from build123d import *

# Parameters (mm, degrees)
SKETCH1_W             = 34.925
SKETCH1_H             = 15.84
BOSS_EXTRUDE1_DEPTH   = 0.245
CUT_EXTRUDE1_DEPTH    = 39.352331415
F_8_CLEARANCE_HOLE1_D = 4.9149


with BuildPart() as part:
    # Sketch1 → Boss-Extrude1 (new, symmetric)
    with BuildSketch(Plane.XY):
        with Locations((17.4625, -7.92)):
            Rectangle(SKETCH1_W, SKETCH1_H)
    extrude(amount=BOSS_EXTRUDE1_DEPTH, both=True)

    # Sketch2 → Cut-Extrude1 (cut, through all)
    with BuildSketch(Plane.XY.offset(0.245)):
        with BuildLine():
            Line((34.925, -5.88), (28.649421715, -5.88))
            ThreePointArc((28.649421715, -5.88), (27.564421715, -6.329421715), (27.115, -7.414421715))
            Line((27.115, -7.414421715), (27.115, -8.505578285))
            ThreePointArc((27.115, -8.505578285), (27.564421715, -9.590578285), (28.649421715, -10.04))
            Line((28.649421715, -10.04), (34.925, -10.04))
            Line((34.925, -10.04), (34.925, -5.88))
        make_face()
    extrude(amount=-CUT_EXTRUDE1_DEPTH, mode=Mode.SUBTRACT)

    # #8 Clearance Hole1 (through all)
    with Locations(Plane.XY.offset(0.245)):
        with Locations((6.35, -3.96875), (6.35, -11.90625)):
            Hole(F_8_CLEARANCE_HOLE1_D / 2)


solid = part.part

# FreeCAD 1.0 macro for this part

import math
import FreeCAD as App
import Part
import Sketcher
from FreeCAD import Vector
Q = App.Units.Quantity

doc = App.newDocument("Part")
params = doc.addObject("Spreadsheet::Sheet", "Params")
for row, (alias, value) in enumerate([
    ("sketch1_width", "1.375 in"),
    ("pad1_length", "0.49 mm"),
    ("hole_diameter", "0.1935 in"),
], start=1):
    params.set(f"A{row}", alias)
    params.set(f"B{row}", "=" + value)
    params.setAlias(f"B{row}", alias)

body = doc.addObject("PartDesign::Body", "Body")

sketch1 = body.newObject("Sketcher::SketchObject", "Sketch")
sketch1.AttachmentSupport = (doc.getObject("XY_Plane"), [""])
sketch1.MapMode = "FlatFace"
sketch1.addGeometry(Part.LineSegment(Vector(0, 0, 0), Vector(0, -16, 0)), False)
sketch1.addGeometry(Part.LineSegment(Vector(0, -16, 0), Vector(35, -16, 0)), False)
sketch1.addGeometry(Part.LineSegment(Vector(35, -16, 0), Vector(35, 0, 0)), False)
sketch1.addGeometry(Part.LineSegment(Vector(35, 0, 0), Vector(0, 0, 0)), False)
sketch1.addConstraint(Sketcher.Constraint("Coincident", 0, 2, 1, 1))
sketch1.addConstraint(Sketcher.Constraint("Coincident", 1, 2, 2, 1))
sketch1.addConstraint(Sketcher.Constraint("Coincident", 2, 2, 3, 1))
sketch1.addConstraint(Sketcher.Constraint("Coincident", 3, 2, 0, 1))
sketch1.addConstraint(Sketcher.Constraint("Vertical", 0))
sketch1.addConstraint(Sketcher.Constraint("Horizontal", 1))
sketch1.addConstraint(Sketcher.Constraint("Vertical", 2))
sketch1.addConstraint(Sketcher.Constraint("Horizontal", 3))
sketch1.addConstraint(Sketcher.Constraint("Coincident", 3, 2, -1, 1))
sketch1.addConstraint(Sketcher.Constraint("DistanceX", 1, 1, 1, 2, Q("1.375 in")))
sketch1.addConstraint(Sketcher.Constraint("DistanceY", 0, 2, 0, 1, 15.84))
sketch1.setExpression("Constraints[9]", "Params.sketch1_width")
pad1 = body.newObject("PartDesign::Pad", "Pad")
pad1.Profile = sketch1
pad1.setExpression("Length", "Params.pad1_length")
pad1.Midplane = True

sketch2 = body.newObject("Sketcher::SketchObject", "Sketch001")
sketch2.AttachmentSupport = (doc.getObject("XY_Plane"), [""])
sketch2.MapMode = "FlatFace"
sketch2.AttachmentOffset = App.Placement(Vector(0, 0, 0.245), App.Rotation())
sketch2.addGeometry(Part.LineSegment(Vector(34.9, -5.9, 0), Vector(28.6, -5.9, 0)), False)
sketch2.addGeometry(Part.ArcOfCircle(Part.Circle(Vector(28.6, -7.4, 0), Vector(0, 0, 1), 1.5), math.radians(90), math.radians(180)), False)
sketch2.addGeometry(Part.LineSegment(Vector(27.1, -7.4, 0), Vector(27.1, -8.5, 0)), False)
sketch2.addGeometry(Part.ArcOfCircle(Part.Circle(Vector(28.6, -8.5, 0), Vector(0, 0, 1), 1.5), math.radians(180), math.radians(270)), False)
sketch2.addGeometry(Part.LineSegment(Vector(28.6, -10, 0), Vector(34.9, -10, 0)), False)
sketch2.addGeometry(Part.LineSegment(Vector(34.9, -10, 0), Vector(34.9, -5.9, 0)), False)
sketch2.addConstraint(Sketcher.Constraint("Tangent", 0, 2, 1, 1))
sketch2.addConstraint(Sketcher.Constraint("Tangent", 1, 2, 2, 1))
sketch2.addConstraint(Sketcher.Constraint("Tangent", 2, 2, 3, 1))
sketch2.addConstraint(Sketcher.Constraint("Tangent", 3, 2, 4, 1))
sketch2.addConstraint(Sketcher.Constraint("Coincident", 4, 2, 5, 1))
sketch2.addConstraint(Sketcher.Constraint("Coincident", 5, 2, 0, 1))
sketch2.addConstraint(Sketcher.Constraint("Horizontal", 0))
sketch2.addConstraint(Sketcher.Constraint("Vertical", 2))
sketch2.addConstraint(Sketcher.Constraint("Horizontal", 4))
sketch2.addConstraint(Sketcher.Constraint("Vertical", 5))
sketch2.addConstraint(Sketcher.Constraint("Equal", 1, 3))
sketch2.addConstraint(Sketcher.Constraint("DistanceX", -1, 1, 4, 2, Q("1.375 in")))
sketch2.addConstraint(Sketcher.Constraint("Radius", 1, 1.534422))
sketch2.addConstraint(Sketcher.Constraint("DistanceY", 5, 1, 5, 2, 4.16))
sketch2.addConstraint(Sketcher.Constraint("DistanceX", 0, 2, 0, 1, 6.275578))
sketch2.addConstraint(Sketcher.Constraint("DistanceY", 0, 2, -1, 1, 5.88))
pocket1 = body.newObject("PartDesign::Pocket", "Pocket")
pocket1.Profile = sketch2
pocket1.Type = "ThroughAll"

sketch3 = body.newObject("Sketcher::SketchObject", "Sketch002")
sketch3.AttachmentSupport = (doc.getObject("XY_Plane"), [""])
sketch3.MapMode = "FlatFace"
sketch3.AttachmentOffset = App.Placement(Vector(0, 0, 0.245), App.Rotation())
sketch3.addGeometry(Part.Circle(Vector(6.3, -4, 0), Vector(0, 0, 1), 2.5), False)
sketch3.addGeometry(Part.Circle(Vector(6.3, -11.9, 0), Vector(0, 0, 1), 2.5), False)
sketch3.addConstraint(Sketcher.Constraint("Equal", 0, 1))
sketch3.addConstraint(Sketcher.Constraint("Vertical", 0, 3, 1, 3))
sketch3.addConstraint(Sketcher.Constraint("Diameter", 0, Q("0.1935 in")))
sketch3.addConstraint(Sketcher.Constraint("DistanceX", -1, 1, 0, 3, Q("0.25 in")))
sketch3.addConstraint(Sketcher.Constraint("DistanceY", 0, 3, -1, 1, Q("0.15625 in")))
sketch3.addConstraint(Sketcher.Constraint("DistanceY", 1, 3, -1, 1, Q("0.46875 in")))
doc.recompute()
hole = body.newObject("PartDesign::Hole", "Hole")
hole.Profile = sketch3
hole.ThreadType = "None"
hole.setExpression("Diameter", "Params.hole_diameter")
hole.DepthType = "ThroughAll"

doc.recompute()
